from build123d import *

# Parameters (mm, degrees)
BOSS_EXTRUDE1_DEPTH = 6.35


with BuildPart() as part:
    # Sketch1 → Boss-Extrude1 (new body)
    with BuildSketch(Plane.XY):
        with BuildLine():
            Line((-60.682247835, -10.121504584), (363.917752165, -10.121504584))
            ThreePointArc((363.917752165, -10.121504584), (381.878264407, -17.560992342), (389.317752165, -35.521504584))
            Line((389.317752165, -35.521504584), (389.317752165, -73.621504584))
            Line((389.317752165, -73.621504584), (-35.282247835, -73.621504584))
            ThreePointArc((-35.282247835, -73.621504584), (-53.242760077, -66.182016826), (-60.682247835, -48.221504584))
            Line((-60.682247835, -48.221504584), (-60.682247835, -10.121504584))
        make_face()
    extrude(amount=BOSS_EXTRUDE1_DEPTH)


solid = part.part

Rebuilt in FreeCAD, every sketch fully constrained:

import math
import FreeCAD as App
import Part
import Sketcher
Q = App.Units.Quantity

doc = App.newDocument("Part")
body = doc.addObject("PartDesign::Body", "Body")

sketch1 = body.newObject("Sketcher::SketchObject", "Sketch")
sketch1.AttachmentSupport = (doc.getObject("XY_Plane"), [""])
sketch1.MapMode = "FlatFace"
sketch1.addGeometry([
    Part.LineSegment(App.Vector(364, -10, 0), App.Vector(-61, -10, 0)),
    Part.LineSegment(App.Vector(-61, -10, 0), App.Vector(-61, -48, 0)),
    Part.ArcOfCircle(Part.Circle(App.Vector(-35, -48, 0), App.Vector(0, 0, 1), 25), math.radians(180), math.radians(270)),
    Part.LineSegment(App.Vector(-35, -74, 0), App.Vector(389, -74, 0)),
    Part.LineSegment(App.Vector(389, -74, 0), App.Vector(389, -36, 0)),
    Part.ArcOfCircle(Part.Circle(App.Vector(364, -36, 0), App.Vector(0, 0, 1), 25), math.radians(0), math.radians(90)),
], False)
sketch1.addConstraint([
    Sketcher.Constraint("Coincident", 0, 2, 1, 1),
    Sketcher.Constraint("Tangent", 1, 2, 2, 1),
    Sketcher.Constraint("Tangent", 2, 2, 3, 1),
    Sketcher.Constraint("Coincident", 3, 2, 4, 1),
    Sketcher.Constraint("Tangent", 4, 2, 5, 1),
    Sketcher.Constraint("Tangent", 5, 2, 0, 1),
    Sketcher.Constraint("Horizontal", 0),
    Sketcher.Constraint("Vertical", 1),
    Sketcher.Constraint("Horizontal", 3),
    Sketcher.Constraint("Vertical", 4),
    Sketcher.Constraint("Equal", 2, 5),
    Sketcher.Constraint("Radius", 2, Q("1 in")),
    Sketcher.Constraint("DistanceY", 1, 2, 1, 1, Q("1.5 in")),
    Sketcher.Constraint("DistanceX", 0, 2, 0, 1, 424.6),
    Sketcher.Constraint("DistanceX", 2, 3, -1, 1, 35.282248),
    Sketcher.Constraint("DistanceY", 2, 3, -1, 1, 48.221505),
])
pad1 = body.newObject("PartDesign::Pad", "Pad")
pad1.Profile = sketch1
pad1.Length = Q("0.25 in")

doc.recompute()
